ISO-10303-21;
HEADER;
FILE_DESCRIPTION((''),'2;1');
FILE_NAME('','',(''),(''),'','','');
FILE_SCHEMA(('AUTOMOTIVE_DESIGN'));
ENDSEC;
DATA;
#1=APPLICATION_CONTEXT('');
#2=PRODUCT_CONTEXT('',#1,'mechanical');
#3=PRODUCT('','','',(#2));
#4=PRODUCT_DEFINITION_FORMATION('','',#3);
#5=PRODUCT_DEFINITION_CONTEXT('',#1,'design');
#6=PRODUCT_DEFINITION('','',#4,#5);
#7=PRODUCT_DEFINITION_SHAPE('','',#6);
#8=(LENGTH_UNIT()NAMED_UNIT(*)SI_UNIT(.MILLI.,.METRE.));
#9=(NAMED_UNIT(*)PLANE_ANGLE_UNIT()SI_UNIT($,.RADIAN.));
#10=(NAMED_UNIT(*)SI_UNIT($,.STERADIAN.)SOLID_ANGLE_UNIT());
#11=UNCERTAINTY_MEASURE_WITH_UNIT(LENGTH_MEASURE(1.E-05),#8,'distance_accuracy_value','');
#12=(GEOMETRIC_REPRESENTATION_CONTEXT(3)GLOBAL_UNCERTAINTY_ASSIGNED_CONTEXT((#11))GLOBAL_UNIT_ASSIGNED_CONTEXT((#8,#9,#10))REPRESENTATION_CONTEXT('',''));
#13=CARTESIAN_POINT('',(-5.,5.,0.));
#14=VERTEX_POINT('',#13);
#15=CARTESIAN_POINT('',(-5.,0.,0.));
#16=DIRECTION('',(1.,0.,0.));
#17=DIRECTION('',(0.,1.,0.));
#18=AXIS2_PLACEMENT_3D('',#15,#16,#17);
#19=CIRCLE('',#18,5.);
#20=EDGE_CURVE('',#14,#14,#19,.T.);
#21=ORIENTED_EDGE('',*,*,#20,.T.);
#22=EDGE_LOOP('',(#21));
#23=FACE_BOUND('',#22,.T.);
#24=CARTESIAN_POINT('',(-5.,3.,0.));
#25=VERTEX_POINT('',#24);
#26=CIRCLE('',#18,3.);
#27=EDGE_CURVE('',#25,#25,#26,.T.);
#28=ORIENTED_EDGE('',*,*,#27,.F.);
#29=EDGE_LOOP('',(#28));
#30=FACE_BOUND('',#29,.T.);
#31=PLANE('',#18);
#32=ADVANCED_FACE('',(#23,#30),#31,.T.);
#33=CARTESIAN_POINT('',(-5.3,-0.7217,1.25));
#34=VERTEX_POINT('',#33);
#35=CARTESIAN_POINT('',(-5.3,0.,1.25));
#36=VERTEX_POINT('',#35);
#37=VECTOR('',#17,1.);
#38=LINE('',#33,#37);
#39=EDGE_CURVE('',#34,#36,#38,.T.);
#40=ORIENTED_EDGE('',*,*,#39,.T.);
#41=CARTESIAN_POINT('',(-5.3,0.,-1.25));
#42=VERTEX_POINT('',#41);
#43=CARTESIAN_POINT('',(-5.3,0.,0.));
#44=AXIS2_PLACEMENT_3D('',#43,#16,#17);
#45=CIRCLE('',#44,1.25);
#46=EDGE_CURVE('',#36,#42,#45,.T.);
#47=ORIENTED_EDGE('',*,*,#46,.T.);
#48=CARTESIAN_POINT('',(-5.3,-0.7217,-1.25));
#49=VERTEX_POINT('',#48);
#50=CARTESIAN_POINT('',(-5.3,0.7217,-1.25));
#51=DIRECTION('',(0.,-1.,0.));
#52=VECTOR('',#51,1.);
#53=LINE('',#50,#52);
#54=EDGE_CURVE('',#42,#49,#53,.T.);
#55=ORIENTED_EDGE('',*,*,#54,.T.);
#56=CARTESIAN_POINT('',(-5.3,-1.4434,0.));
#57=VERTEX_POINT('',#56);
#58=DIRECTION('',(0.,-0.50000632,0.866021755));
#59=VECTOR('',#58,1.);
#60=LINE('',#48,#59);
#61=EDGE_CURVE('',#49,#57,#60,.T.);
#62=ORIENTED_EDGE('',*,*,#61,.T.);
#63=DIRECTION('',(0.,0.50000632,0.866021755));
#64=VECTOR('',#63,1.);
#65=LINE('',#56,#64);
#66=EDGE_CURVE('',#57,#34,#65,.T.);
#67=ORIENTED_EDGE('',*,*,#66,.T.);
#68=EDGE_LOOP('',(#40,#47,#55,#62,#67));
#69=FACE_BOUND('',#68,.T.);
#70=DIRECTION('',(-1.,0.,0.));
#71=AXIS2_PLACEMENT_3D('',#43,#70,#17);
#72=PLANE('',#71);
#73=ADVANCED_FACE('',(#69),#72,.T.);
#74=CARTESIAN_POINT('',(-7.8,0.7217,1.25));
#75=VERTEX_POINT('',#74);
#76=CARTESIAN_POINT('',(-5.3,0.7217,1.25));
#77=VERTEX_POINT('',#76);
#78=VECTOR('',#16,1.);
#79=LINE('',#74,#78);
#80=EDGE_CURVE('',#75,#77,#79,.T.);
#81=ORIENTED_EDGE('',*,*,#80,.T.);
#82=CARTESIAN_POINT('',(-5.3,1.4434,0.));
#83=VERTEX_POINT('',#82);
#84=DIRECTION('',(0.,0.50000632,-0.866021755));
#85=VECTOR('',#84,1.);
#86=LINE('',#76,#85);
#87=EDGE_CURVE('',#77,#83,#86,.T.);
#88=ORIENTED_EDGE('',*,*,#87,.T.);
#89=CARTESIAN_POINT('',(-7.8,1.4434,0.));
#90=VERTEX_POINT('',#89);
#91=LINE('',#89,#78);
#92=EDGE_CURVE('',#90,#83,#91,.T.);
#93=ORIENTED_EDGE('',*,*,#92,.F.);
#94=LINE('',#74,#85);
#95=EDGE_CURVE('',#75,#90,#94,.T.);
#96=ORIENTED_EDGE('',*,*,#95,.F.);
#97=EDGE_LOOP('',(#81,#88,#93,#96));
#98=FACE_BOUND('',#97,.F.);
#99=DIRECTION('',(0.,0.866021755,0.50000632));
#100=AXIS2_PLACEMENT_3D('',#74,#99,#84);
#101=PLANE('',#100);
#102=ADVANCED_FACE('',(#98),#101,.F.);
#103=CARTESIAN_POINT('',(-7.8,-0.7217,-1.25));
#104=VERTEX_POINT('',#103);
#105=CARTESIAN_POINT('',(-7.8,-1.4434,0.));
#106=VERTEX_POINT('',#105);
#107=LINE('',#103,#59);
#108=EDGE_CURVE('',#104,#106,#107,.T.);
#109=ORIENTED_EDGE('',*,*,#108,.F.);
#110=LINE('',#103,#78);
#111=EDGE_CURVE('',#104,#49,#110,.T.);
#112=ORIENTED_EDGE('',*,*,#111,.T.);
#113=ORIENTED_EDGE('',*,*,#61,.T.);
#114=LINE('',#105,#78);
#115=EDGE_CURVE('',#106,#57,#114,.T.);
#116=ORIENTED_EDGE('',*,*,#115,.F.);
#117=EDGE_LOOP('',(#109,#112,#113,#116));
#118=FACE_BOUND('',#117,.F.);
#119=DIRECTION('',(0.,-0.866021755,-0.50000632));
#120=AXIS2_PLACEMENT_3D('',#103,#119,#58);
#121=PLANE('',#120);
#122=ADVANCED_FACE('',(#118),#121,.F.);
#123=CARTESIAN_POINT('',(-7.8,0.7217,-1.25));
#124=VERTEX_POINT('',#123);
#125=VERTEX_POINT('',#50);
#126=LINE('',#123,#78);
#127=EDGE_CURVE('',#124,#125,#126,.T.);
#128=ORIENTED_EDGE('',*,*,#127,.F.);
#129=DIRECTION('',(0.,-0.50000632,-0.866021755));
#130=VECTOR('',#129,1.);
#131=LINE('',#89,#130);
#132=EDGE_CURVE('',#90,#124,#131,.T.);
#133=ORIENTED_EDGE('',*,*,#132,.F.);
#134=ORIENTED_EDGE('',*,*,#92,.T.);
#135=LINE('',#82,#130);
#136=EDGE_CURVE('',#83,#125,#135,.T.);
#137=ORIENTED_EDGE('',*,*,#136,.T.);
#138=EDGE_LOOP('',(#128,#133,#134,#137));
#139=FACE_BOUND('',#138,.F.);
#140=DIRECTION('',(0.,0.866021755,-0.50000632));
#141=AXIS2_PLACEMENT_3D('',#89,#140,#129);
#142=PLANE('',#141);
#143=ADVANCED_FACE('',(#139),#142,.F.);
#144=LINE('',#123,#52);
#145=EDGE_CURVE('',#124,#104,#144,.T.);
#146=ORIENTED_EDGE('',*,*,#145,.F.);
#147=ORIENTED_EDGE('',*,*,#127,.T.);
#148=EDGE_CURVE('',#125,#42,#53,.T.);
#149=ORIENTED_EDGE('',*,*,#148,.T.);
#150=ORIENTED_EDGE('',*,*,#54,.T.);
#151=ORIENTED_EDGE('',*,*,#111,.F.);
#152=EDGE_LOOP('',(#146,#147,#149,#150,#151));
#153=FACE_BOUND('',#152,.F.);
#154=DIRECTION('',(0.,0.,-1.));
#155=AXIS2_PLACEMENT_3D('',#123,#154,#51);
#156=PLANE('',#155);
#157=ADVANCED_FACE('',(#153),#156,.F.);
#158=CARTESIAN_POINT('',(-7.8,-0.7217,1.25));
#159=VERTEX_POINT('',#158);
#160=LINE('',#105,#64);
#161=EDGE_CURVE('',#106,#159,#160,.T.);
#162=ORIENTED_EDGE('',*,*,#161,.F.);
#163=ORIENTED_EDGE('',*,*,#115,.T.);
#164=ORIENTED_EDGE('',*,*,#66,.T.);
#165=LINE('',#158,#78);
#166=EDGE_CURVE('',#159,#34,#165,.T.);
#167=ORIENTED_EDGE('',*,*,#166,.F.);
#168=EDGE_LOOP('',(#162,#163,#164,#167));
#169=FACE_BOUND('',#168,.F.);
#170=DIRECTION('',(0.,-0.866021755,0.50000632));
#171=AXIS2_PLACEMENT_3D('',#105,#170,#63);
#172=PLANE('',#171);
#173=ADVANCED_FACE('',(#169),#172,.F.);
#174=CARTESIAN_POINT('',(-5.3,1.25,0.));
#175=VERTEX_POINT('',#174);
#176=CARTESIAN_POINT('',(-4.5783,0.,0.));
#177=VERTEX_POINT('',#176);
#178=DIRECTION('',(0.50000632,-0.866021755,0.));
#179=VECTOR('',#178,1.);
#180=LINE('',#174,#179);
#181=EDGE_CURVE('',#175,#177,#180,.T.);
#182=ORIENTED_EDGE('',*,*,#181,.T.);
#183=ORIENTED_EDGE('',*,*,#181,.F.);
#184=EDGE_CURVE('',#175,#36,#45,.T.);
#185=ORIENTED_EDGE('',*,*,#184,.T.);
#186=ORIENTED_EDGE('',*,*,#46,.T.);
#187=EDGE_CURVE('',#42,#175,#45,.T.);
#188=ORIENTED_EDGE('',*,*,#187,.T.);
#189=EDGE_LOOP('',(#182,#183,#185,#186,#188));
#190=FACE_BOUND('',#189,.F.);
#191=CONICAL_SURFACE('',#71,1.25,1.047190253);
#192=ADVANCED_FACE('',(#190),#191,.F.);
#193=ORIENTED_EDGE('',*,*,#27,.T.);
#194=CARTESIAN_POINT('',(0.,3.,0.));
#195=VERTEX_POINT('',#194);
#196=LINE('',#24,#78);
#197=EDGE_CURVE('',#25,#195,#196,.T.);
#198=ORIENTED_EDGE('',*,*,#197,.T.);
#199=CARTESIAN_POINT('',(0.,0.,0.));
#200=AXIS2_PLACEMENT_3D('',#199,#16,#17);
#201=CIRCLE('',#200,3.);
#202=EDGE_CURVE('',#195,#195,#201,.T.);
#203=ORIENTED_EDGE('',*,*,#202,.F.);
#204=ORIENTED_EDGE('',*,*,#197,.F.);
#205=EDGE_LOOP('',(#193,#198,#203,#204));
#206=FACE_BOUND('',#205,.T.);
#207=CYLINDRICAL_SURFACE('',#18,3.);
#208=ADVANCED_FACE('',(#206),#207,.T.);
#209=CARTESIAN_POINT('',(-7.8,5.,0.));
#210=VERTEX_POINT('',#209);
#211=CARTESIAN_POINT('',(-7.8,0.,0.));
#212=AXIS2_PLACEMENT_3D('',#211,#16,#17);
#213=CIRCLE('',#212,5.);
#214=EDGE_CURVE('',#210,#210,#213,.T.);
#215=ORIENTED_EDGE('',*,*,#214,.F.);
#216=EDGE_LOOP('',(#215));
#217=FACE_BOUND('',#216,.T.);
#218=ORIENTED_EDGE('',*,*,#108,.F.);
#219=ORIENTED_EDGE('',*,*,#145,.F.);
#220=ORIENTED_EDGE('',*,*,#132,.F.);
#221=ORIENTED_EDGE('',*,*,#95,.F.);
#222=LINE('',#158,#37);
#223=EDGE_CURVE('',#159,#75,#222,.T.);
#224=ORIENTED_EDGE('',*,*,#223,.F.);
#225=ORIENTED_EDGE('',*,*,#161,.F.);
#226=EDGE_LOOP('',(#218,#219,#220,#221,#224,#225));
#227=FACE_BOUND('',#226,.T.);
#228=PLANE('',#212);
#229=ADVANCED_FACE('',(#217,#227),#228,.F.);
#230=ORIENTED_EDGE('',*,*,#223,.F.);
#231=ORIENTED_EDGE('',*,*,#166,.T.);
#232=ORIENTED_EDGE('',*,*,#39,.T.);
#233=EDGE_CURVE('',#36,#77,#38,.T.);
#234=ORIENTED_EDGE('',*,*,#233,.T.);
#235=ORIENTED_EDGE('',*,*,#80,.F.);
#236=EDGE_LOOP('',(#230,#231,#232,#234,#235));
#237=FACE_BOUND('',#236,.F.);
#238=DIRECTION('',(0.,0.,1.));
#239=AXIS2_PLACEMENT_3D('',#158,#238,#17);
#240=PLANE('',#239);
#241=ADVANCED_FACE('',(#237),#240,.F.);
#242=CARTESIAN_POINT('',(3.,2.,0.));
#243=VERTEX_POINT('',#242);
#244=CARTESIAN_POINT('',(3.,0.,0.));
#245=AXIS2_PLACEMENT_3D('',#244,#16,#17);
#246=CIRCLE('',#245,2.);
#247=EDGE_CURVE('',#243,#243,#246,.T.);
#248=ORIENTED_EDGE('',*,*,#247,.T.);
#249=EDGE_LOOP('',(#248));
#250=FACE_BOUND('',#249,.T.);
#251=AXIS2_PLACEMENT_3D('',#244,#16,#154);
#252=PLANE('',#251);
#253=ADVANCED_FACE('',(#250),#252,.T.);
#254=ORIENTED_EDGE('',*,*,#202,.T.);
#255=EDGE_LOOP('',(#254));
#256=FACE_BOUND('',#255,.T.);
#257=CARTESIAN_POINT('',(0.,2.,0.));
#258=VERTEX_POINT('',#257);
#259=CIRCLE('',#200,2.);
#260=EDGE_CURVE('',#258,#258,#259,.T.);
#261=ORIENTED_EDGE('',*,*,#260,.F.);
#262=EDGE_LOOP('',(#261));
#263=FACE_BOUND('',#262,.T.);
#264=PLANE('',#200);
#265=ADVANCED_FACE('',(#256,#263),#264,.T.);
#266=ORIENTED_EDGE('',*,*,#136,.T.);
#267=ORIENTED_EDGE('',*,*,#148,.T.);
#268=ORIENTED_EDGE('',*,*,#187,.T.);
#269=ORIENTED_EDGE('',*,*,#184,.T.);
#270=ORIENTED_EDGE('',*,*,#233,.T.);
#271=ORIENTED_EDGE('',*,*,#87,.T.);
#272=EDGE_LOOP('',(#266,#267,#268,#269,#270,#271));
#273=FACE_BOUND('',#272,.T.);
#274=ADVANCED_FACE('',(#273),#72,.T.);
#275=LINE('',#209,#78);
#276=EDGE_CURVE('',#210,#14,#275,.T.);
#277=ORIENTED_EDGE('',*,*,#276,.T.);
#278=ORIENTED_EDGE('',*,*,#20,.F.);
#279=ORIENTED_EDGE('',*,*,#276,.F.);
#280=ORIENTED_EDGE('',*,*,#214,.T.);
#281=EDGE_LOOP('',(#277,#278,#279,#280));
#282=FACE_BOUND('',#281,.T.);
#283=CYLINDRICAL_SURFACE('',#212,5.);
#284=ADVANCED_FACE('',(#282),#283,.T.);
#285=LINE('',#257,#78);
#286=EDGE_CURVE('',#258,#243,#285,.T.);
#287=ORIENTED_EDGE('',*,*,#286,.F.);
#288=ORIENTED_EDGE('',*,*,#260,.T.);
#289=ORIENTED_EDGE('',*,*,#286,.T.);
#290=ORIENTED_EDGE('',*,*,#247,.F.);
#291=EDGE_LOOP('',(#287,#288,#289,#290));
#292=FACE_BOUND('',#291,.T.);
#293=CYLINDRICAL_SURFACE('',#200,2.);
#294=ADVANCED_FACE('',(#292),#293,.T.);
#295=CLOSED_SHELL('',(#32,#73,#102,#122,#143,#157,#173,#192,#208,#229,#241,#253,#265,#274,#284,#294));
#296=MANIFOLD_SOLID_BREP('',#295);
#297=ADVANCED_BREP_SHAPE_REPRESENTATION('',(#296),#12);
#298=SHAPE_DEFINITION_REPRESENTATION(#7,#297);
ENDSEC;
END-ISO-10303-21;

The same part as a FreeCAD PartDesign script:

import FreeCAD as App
import Part
import Sketcher
from FreeCAD import Vector
Q = App.Units.Quantity

doc = App.newDocument("Part")
body = doc.addObject("PartDesign::Body", "Body")

sketch1 = body.newObject("Sketcher::SketchObject", "Sketch")
sketch1.AttachmentSupport = (doc.getObject("XY_Plane"), [""])
sketch1.MapMode = "FlatFace"
sketch1.addGeometry([
    Part.LineSegment(Vector(-7.8, 0, 0), Vector(5, 0, 0)),
    Part.LineSegment(Vector(5, 0, 0), Vector(5, 1.6, 0)),
    Part.LineSegment(Vector(5, 1.6, 0), Vector(4.6, 2, 0)),
    Part.LineSegment(Vector(4.6, 2, 0), Vector(0, 2, 0)),
    Part.LineSegment(Vector(0, 2, 0), Vector(0, 3, 0)),
    Part.LineSegment(Vector(0, 3, 0), Vector(-5, 3, 0)),
    Part.LineSegment(Vector(-5, 3, 0), Vector(-5, 5, 0)),
    Part.LineSegment(Vector(-5, 5, 0), Vector(-7.8, 5, 0)),
    Part.LineSegment(Vector(-7.8, 5, 0), Vector(-7.8, 0, 0)),
], False)
sketch1.addConstraint([
    Sketcher.Constraint("Coincident", 0, 2, 1, 1),
    Sketcher.Constraint("Coincident", 1, 2, 2, 1),
    Sketcher.Constraint("Coincident", 2, 2, 3, 1),
    Sketcher.Constraint("Coincident", 3, 2, 4, 1),
    Sketcher.Constraint("Coincident", 4, 2, 5, 1),
    Sketcher.Constraint("Coincident", 5, 2, 6, 1),
    Sketcher.Constraint("Coincident", 6, 2, 7, 1),
    Sketcher.Constraint("Coincident", 7, 2, 8, 1),
    Sketcher.Constraint("Coincident", 8, 2, 0, 1),
    Sketcher.Constraint("Horizontal", 0),
    Sketcher.Constraint("Vertical", 1),
    Sketcher.Constraint("Horizontal", 3),
    Sketcher.Constraint("Vertical", 4),
    Sketcher.Constraint("Horizontal", 5),
    Sketcher.Constraint("Vertical", 6),
    Sketcher.Constraint("Horizontal", 7),
    Sketcher.Constraint("Vertical", 8),
    Sketcher.Constraint("PointOnObject", 0, 2, -1),
    Sketcher.Constraint("PointOnObject", 3, 2, -2),
    Sketcher.Constraint("Equal", 5, 8),
    Sketcher.Constraint("DistanceX", 5, 2, 5, 1, 5.0),
    Sketcher.Constraint("DistanceY", 4, 1, 4, 2, 1.0),
    Sketcher.Constraint("DistanceY", 6, 1, 6, 2, 2.0),
    Sketcher.Constraint("Angle", 2, Q("135 deg")),
    Sketcher.Constraint("DistanceX", 0, 1, 0, 2, 12.8),
    Sketcher.Constraint("DistanceX", 7, 2, 7, 1, 2.8),
    Sketcher.Constraint("DistanceX", 3, 2, 3, 1, 4.5705),
])
revolution = body.newObject("PartDesign::Revolution", "Revolution")
revolution.Profile = sketch1
revolution.ReferenceAxis = (sketch1, ["H_Axis"])
revolution.Angle = 360

sketch2 = body.newObject("Sketcher::SketchObject", "Sketch001")
sketch2.AttachmentSupport = (doc.getObject("YZ_Plane"), [""])
sketch2.MapMode = "FlatFace"
sketch2.AttachmentOffset = App.Placement(Vector(0, 0, -7.8), App.Rotation())
sketch2.addGeometry([
    Part.LineSegment(Vector(-0.7, -1.2, 0), Vector(-1.4, 0, 0)),
    Part.LineSegment(Vector(-1.4, 0, 0), Vector(-0.7, 1.2, 0)),
    Part.LineSegment(Vector(-0.7, 1.2, 0), Vector(0.7, 1.2, 0)),
    Part.LineSegment(Vector(0.7, 1.2, 0), Vector(1.4, 0, 0)),
    Part.LineSegment(Vector(1.4, 0, 0), Vector(0.7, -1.2, 0)),
    Part.LineSegment(Vector(0.7, -1.2, 0), Vector(-0.7, -1.2, 0)),
], False)
sketch2.addConstraint([
    Sketcher.Constraint("Coincident", 0, 2, 1, 1),
    Sketcher.Constraint("Coincident", 1, 2, 2, 1),
    Sketcher.Constraint("Coincident", 2, 2, 3, 1),
    Sketcher.Constraint("Coincident", 3, 2, 4, 1),
    Sketcher.Constraint("Coincident", 4, 2, 5, 1),
    Sketcher.Constraint("Coincident", 5, 2, 0, 1),
    Sketcher.Constraint("Horizontal", 2),
    Sketcher.Constraint("Horizontal", 5),
    Sketcher.Constraint("Symmetric", 0, 2, 3, 2, -1, 1),
    Sketcher.Constraint("Symmetric", 1, 2, 4, 2, -1, 1),
    Sketcher.Constraint("PointOnObject", 0, 2, -1),
    Sketcher.Constraint("Parallel", 0, 3),
    Sketcher.Constraint("Vertical", 2, 2, 4, 2),
    Sketcher.Constraint("Angle", 0, Q("120.0004 deg")),
    Sketcher.Constraint("DistanceY", 4, 2, 2, 2, 2.5),
    Sketcher.Constraint("DistanceX", 2, 1, 2, 2, 1.4434),
])
pocket1 = body.newObject("PartDesign::Pocket", "Pocket")
pocket1.Profile = sketch2
pocket1.Length = 2.5
pocket1.Reversed = True

sketch3 = body.newObject("Sketcher::SketchObject", "Sketch002")
sketch3.AttachmentSupport = (doc.getObject("XY_Plane"), [""])
sketch3.MapMode = "FlatFace"
sketch3.addGeometry([
    Part.LineSegment(Vector(-5.3, 0, 0), Vector(-4.6, 0, 0)),
    Part.LineSegment(Vector(-4.6, 0, 0), Vector(-5.3, 1.2, 0)),
    Part.LineSegment(Vector(-5.3, 1.2, 0), Vector(-5.3, 0, 0)),
], False)
sketch3.addConstraint([
    Sketcher.Constraint("Coincident", 0, 2, 1, 1),
    Sketcher.Constraint("Coincident", 1, 2, 2, 1),
    Sketcher.Constraint("Coincident", 2, 2, 0, 1),
    Sketcher.Constraint("Horizontal", 0),
    Sketcher.Constraint("Vertical", 2),
    Sketcher.Constraint("PointOnObject", 0, 2, -1),
    Sketcher.Constraint("Angle", 1, Q("120.0004 deg")),
    Sketcher.Constraint("DistanceY", 2, 2, 2, 1, 1.25),
    Sketcher.Constraint("DistanceX", 1, 2, -1, 1, 5.3),
])
groove = body.newObject("PartDesign::Groove", "Groove")
groove.Profile = sketch3
groove.ReferenceAxis = (sketch3, ["H_Axis"])
groove.Angle = 360

sketch4 = body.newObject("Sketcher::SketchObject", "Sketch003")
sketch4.AttachmentSupport = (doc.getObject("YZ_Plane"), [""])
sketch4.MapMode = "FlatFace"
sketch4.AttachmentOffset = App.Placement(Vector(0, 0, 5), App.Rotation())
sketch4.addGeometry(Part.Circle(Vector(0, 0, 0), Vector(0, 0, 1), 5), False)
sketch4.addConstraint([
    Sketcher.Constraint("Coincident", 0, 3, -1, 1),
    Sketcher.Constraint("Diameter", 0, 10.0),
])
pocket2 = body.newObject("PartDesign::Pocket", "Pocket001")
pocket2.Profile = sketch4
pocket2.Length = 2

doc.recompute()
